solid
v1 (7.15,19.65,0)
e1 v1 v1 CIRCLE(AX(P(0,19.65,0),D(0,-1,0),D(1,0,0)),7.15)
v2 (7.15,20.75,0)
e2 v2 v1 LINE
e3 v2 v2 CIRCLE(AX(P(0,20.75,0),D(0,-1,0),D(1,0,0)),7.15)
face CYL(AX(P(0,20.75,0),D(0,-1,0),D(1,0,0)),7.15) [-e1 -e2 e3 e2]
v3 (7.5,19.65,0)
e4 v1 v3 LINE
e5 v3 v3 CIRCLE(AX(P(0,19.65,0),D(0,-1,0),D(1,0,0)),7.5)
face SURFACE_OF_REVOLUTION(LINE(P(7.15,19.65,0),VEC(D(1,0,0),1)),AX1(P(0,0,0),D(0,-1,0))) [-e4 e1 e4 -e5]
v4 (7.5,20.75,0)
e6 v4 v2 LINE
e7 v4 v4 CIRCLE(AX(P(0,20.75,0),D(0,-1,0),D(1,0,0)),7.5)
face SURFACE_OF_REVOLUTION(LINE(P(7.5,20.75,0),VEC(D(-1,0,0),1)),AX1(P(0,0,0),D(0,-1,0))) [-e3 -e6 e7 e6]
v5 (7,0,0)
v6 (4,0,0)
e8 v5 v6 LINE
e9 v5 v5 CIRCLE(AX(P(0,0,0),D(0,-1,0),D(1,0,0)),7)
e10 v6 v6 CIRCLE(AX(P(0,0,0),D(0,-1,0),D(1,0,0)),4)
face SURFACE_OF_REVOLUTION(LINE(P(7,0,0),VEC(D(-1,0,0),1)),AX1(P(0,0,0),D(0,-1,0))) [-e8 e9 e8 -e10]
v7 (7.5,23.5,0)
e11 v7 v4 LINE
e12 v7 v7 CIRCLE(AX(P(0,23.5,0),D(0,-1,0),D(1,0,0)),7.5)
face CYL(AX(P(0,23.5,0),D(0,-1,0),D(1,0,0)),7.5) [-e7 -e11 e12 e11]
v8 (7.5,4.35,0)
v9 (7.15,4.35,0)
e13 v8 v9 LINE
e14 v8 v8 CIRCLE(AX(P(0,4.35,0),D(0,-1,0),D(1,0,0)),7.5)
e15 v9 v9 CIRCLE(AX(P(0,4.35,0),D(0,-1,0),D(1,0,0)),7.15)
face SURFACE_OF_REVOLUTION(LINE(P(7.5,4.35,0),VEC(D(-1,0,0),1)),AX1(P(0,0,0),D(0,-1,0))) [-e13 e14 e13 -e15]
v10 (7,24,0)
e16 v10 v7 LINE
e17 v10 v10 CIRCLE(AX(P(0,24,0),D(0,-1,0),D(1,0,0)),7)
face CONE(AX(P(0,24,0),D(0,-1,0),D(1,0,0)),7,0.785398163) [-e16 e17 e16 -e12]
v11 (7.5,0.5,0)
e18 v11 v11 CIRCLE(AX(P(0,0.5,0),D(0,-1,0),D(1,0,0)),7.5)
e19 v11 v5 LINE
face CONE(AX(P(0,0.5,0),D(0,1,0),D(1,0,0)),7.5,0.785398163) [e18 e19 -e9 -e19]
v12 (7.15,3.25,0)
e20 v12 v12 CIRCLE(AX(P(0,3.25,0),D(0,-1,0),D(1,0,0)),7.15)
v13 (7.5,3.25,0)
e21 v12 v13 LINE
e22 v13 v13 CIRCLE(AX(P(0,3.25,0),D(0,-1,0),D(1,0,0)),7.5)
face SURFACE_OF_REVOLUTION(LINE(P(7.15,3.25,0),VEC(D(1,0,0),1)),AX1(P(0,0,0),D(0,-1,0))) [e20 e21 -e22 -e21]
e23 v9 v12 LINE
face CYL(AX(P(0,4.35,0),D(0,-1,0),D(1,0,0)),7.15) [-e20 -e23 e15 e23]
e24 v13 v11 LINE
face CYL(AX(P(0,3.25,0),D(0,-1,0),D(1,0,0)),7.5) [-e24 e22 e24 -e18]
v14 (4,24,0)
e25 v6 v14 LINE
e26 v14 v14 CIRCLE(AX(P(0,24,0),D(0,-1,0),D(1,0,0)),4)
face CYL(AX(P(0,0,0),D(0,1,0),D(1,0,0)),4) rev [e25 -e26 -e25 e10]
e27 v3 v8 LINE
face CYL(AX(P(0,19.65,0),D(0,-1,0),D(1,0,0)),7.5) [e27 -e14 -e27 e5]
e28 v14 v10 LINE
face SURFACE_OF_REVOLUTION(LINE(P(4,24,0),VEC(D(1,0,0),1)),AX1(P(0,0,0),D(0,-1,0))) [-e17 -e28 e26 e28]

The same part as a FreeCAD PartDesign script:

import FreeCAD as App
import Part
import Sketcher
from FreeCAD import Vector
Q = App.Units.Quantity

doc = App.newDocument("Part")
params = doc.addObject("Spreadsheet::Sheet", "Params")
for row, (alias, value) in enumerate([
    ("sketch1_width", "24 mm"),
    ("sketch1_height", "3 mm"),
    ("sketch1_width2", "1.1 mm"),
    ("sketch1_width3", "15.3 mm"),
    ("sketch1_width4", "2.75 mm"),
    ("sketch2_diameter", "8 mm"),
], start=1):
    params.set(f"A{row}", alias)
    params.set(f"B{row}", "=" + value)
    params.setAlias(f"B{row}", alias)

body = doc.addObject("PartDesign::Body", "Body")

# Sketch on YZ plane
sketch1 = doc.addObject("Sketcher::SketchObject", "Sketch")
body.addObject(sketch1)
sketch1.AttachmentSupport = (doc.YZ_Plane, [""])
sketch1.MapMode = "FlatFace"
sketch1.addGeometry(Part.LineSegment(Vector(0, 7, 0), Vector(0, 4, 0)), False)
sketch1.addGeometry(Part.LineSegment(Vector(0, 4, 0), Vector(24, 4, 0)), False)
sketch1.addGeometry(Part.LineSegment(Vector(24, 4, 0), Vector(24, 7, 0)), False)
sketch1.addGeometry(Part.LineSegment(Vector(24, 7, 0), Vector(23.5, 7.5, 0)), False)
sketch1.addGeometry(Part.LineSegment(Vector(23.5, 7.5, 0), Vector(20.75, 7.5, 0)), False)
sketch1.addGeometry(Part.LineSegment(Vector(20.75, 7.5, 0), Vector(20.75, 7.15, 0)), False)
sketch1.addGeometry(Part.LineSegment(Vector(20.75, 7.15, 0), Vector(19.65, 7.15, 0)), False)
sketch1.addGeometry(Part.LineSegment(Vector(19.65, 7.15, 0), Vector(19.65, 7.5, 0)), False)
sketch1.addGeometry(Part.LineSegment(Vector(19.65, 7.5, 0), Vector(4.35, 7.5, 0)), False)
sketch1.addGeometry(Part.LineSegment(Vector(4.35, 7.5, 0), Vector(4.35, 7.15, 0)), False)
sketch1.addGeometry(Part.LineSegment(Vector(4.35, 7.15, 0), Vector(3.25, 7.15, 0)), False)
sketch1.addGeometry(Part.LineSegment(Vector(3.25, 7.15, 0), Vector(3.25, 7.5, 0)), False)
sketch1.addGeometry(Part.LineSegment(Vector(3.25, 7.5, 0), Vector(0.5, 7.5, 0)), False)
sketch1.addGeometry(Part.LineSegment(Vector(0.5, 7.5, 0), Vector(0, 7, 0)), False)
sketch1.addConstraint(Sketcher.Constraint("Coincident", 0, 2, 1, 1))
sketch1.addConstraint(Sketcher.Constraint("Coincident", 1, 2, 2, 1))
sketch1.addConstraint(Sketcher.Constraint("Coincident", 2, 2, 3, 1))
sketch1.addConstraint(Sketcher.Constraint("Coincident", 3, 2, 4, 1))
sketch1.addConstraint(Sketcher.Constraint("Coincident", 4, 2, 5, 1))
sketch1.addConstraint(Sketcher.Constraint("Coincident", 5, 2, 6, 1))
sketch1.addConstraint(Sketcher.Constraint("Coincident", 6, 2, 7, 1))
sketch1.addConstraint(Sketcher.Constraint("Coincident", 7, 2, 8, 1))
sketch1.addConstraint(Sketcher.Constraint("Coincident", 8, 2, 9, 1))
sketch1.addConstraint(Sketcher.Constraint("Coincident", 9, 2, 10, 1))
sketch1.addConstraint(Sketcher.Constraint("Coincident", 10, 2, 11, 1))
sketch1.addConstraint(Sketcher.Constraint("Coincident", 11, 2, 12, 1))
sketch1.addConstraint(Sketcher.Constraint("Coincident", 12, 2, 13, 1))
sketch1.addConstraint(Sketcher.Constraint("Coincident", 13, 2, 0, 1))
sketch1.addConstraint(Sketcher.Constraint("Vertical", 0))
sketch1.addConstraint(Sketcher.Constraint("Horizontal", 1))
sketch1.addConstraint(Sketcher.Constraint("Vertical", 2))
sketch1.addConstraint(Sketcher.Constraint("Horizontal", 4))
sketch1.addConstraint(Sketcher.Constraint("Vertical", 5))
sketch1.addConstraint(Sketcher.Constraint("Horizontal", 6))
sketch1.addConstraint(Sketcher.Constraint("Vertical", 7))
sketch1.addConstraint(Sketcher.Constraint("Horizontal", 8))
sketch1.addConstraint(Sketcher.Constraint("Vertical", 9))
sketch1.addConstraint(Sketcher.Constraint("Horizontal", 10))
sketch1.addConstraint(Sketcher.Constraint("Vertical", 11))
sketch1.addConstraint(Sketcher.Constraint("Horizontal", 12))
sketch1.addConstraint(Sketcher.Constraint("PointOnObject", 0, 2, -2))
sketch1.addConstraint(Sketcher.Constraint("Perpendicular", 3, 13))
sketch1.addConstraint(Sketcher.Constraint("Horizontal", 4, 2, 7, 2))
sketch1.addConstraint(Sketcher.Constraint("Horizontal", 6, 2, 9, 2))
sketch1.addConstraint(Sketcher.Constraint("Horizontal", 8, 2, 11, 2))
sketch1.addConstraint(Sketcher.Constraint("Horizontal", 2, 2, 13, 2))
sketch1.addConstraint(Sketcher.Constraint("Equal", 6, 10))
sketch1.addConstraint(Sketcher.Constraint("Equal", 4, 12))
sketch1.addConstraint(Sketcher.Constraint("Equal", 3, 13))
sketch1.addConstraint(Sketcher.Constraint("DistanceX", 1, 1, 1, 2, Q("24 mm")))
sketch1.addConstraint(Sketcher.Constraint("DistanceY", 0, 2, 0, 1, Q("3 mm")))
sketch1.addConstraint(Sketcher.Constraint("DistanceX", 6, 2, 6, 1, Q("1.1 mm")))
sketch1.addConstraint(Sketcher.Constraint("DistanceX", 8, 2, 8, 1, Q("15.3 mm")))
sketch1.addConstraint(Sketcher.Constraint("DistanceY", -1, 1, 0, 2, Q("4 mm")))
sketch1.addConstraint(Sketcher.Constraint("DistanceX", 4, 2, 4, 1, Q("2.75 mm")))
sketch1.addConstraint(Sketcher.Constraint("DistanceY", 5, 2, 5, 1, Q("0.35 mm")))
sketch1.setExpression("Constraints[35]", "Params.sketch1_width")
sketch1.setExpression("Constraints[36]", "Params.sketch1_height")
sketch1.setExpression("Constraints[37]", "Params.sketch1_width2")
sketch1.setExpression("Constraints[38]", "Params.sketch1_width3")
sketch1.setExpression("Constraints[40]", "Params.sketch1_width4")

# Sketch on XZ plane
sketch2 = doc.addObject("Sketcher::SketchObject", "Sketch001")
body.addObject(sketch2)
sketch2.AttachmentSupport = (doc.XZ_Plane, [""])
sketch2.MapMode = "FlatFace"
sketch2.addGeometry(Part.Circle(Vector(0, 0, 0), Vector(0, 0, 1), 4), False)
sketch2.addConstraint(Sketcher.Constraint("Coincident", 0, 3, -1, 1))
sketch2.addConstraint(Sketcher.Constraint("Diameter", 0, Q("8 mm")))
sketch2.setExpression("Constraints[1]", "Params.sketch2_diameter")
doc.recompute()

additivepipe = doc.addObject("PartDesign::AdditivePipe", "AdditivePipe")
body.addObject(additivepipe)
additivepipe.Profile = sketch1
additivepipe.Spine = (sketch2, ["Edge1"])

doc.recompute()
